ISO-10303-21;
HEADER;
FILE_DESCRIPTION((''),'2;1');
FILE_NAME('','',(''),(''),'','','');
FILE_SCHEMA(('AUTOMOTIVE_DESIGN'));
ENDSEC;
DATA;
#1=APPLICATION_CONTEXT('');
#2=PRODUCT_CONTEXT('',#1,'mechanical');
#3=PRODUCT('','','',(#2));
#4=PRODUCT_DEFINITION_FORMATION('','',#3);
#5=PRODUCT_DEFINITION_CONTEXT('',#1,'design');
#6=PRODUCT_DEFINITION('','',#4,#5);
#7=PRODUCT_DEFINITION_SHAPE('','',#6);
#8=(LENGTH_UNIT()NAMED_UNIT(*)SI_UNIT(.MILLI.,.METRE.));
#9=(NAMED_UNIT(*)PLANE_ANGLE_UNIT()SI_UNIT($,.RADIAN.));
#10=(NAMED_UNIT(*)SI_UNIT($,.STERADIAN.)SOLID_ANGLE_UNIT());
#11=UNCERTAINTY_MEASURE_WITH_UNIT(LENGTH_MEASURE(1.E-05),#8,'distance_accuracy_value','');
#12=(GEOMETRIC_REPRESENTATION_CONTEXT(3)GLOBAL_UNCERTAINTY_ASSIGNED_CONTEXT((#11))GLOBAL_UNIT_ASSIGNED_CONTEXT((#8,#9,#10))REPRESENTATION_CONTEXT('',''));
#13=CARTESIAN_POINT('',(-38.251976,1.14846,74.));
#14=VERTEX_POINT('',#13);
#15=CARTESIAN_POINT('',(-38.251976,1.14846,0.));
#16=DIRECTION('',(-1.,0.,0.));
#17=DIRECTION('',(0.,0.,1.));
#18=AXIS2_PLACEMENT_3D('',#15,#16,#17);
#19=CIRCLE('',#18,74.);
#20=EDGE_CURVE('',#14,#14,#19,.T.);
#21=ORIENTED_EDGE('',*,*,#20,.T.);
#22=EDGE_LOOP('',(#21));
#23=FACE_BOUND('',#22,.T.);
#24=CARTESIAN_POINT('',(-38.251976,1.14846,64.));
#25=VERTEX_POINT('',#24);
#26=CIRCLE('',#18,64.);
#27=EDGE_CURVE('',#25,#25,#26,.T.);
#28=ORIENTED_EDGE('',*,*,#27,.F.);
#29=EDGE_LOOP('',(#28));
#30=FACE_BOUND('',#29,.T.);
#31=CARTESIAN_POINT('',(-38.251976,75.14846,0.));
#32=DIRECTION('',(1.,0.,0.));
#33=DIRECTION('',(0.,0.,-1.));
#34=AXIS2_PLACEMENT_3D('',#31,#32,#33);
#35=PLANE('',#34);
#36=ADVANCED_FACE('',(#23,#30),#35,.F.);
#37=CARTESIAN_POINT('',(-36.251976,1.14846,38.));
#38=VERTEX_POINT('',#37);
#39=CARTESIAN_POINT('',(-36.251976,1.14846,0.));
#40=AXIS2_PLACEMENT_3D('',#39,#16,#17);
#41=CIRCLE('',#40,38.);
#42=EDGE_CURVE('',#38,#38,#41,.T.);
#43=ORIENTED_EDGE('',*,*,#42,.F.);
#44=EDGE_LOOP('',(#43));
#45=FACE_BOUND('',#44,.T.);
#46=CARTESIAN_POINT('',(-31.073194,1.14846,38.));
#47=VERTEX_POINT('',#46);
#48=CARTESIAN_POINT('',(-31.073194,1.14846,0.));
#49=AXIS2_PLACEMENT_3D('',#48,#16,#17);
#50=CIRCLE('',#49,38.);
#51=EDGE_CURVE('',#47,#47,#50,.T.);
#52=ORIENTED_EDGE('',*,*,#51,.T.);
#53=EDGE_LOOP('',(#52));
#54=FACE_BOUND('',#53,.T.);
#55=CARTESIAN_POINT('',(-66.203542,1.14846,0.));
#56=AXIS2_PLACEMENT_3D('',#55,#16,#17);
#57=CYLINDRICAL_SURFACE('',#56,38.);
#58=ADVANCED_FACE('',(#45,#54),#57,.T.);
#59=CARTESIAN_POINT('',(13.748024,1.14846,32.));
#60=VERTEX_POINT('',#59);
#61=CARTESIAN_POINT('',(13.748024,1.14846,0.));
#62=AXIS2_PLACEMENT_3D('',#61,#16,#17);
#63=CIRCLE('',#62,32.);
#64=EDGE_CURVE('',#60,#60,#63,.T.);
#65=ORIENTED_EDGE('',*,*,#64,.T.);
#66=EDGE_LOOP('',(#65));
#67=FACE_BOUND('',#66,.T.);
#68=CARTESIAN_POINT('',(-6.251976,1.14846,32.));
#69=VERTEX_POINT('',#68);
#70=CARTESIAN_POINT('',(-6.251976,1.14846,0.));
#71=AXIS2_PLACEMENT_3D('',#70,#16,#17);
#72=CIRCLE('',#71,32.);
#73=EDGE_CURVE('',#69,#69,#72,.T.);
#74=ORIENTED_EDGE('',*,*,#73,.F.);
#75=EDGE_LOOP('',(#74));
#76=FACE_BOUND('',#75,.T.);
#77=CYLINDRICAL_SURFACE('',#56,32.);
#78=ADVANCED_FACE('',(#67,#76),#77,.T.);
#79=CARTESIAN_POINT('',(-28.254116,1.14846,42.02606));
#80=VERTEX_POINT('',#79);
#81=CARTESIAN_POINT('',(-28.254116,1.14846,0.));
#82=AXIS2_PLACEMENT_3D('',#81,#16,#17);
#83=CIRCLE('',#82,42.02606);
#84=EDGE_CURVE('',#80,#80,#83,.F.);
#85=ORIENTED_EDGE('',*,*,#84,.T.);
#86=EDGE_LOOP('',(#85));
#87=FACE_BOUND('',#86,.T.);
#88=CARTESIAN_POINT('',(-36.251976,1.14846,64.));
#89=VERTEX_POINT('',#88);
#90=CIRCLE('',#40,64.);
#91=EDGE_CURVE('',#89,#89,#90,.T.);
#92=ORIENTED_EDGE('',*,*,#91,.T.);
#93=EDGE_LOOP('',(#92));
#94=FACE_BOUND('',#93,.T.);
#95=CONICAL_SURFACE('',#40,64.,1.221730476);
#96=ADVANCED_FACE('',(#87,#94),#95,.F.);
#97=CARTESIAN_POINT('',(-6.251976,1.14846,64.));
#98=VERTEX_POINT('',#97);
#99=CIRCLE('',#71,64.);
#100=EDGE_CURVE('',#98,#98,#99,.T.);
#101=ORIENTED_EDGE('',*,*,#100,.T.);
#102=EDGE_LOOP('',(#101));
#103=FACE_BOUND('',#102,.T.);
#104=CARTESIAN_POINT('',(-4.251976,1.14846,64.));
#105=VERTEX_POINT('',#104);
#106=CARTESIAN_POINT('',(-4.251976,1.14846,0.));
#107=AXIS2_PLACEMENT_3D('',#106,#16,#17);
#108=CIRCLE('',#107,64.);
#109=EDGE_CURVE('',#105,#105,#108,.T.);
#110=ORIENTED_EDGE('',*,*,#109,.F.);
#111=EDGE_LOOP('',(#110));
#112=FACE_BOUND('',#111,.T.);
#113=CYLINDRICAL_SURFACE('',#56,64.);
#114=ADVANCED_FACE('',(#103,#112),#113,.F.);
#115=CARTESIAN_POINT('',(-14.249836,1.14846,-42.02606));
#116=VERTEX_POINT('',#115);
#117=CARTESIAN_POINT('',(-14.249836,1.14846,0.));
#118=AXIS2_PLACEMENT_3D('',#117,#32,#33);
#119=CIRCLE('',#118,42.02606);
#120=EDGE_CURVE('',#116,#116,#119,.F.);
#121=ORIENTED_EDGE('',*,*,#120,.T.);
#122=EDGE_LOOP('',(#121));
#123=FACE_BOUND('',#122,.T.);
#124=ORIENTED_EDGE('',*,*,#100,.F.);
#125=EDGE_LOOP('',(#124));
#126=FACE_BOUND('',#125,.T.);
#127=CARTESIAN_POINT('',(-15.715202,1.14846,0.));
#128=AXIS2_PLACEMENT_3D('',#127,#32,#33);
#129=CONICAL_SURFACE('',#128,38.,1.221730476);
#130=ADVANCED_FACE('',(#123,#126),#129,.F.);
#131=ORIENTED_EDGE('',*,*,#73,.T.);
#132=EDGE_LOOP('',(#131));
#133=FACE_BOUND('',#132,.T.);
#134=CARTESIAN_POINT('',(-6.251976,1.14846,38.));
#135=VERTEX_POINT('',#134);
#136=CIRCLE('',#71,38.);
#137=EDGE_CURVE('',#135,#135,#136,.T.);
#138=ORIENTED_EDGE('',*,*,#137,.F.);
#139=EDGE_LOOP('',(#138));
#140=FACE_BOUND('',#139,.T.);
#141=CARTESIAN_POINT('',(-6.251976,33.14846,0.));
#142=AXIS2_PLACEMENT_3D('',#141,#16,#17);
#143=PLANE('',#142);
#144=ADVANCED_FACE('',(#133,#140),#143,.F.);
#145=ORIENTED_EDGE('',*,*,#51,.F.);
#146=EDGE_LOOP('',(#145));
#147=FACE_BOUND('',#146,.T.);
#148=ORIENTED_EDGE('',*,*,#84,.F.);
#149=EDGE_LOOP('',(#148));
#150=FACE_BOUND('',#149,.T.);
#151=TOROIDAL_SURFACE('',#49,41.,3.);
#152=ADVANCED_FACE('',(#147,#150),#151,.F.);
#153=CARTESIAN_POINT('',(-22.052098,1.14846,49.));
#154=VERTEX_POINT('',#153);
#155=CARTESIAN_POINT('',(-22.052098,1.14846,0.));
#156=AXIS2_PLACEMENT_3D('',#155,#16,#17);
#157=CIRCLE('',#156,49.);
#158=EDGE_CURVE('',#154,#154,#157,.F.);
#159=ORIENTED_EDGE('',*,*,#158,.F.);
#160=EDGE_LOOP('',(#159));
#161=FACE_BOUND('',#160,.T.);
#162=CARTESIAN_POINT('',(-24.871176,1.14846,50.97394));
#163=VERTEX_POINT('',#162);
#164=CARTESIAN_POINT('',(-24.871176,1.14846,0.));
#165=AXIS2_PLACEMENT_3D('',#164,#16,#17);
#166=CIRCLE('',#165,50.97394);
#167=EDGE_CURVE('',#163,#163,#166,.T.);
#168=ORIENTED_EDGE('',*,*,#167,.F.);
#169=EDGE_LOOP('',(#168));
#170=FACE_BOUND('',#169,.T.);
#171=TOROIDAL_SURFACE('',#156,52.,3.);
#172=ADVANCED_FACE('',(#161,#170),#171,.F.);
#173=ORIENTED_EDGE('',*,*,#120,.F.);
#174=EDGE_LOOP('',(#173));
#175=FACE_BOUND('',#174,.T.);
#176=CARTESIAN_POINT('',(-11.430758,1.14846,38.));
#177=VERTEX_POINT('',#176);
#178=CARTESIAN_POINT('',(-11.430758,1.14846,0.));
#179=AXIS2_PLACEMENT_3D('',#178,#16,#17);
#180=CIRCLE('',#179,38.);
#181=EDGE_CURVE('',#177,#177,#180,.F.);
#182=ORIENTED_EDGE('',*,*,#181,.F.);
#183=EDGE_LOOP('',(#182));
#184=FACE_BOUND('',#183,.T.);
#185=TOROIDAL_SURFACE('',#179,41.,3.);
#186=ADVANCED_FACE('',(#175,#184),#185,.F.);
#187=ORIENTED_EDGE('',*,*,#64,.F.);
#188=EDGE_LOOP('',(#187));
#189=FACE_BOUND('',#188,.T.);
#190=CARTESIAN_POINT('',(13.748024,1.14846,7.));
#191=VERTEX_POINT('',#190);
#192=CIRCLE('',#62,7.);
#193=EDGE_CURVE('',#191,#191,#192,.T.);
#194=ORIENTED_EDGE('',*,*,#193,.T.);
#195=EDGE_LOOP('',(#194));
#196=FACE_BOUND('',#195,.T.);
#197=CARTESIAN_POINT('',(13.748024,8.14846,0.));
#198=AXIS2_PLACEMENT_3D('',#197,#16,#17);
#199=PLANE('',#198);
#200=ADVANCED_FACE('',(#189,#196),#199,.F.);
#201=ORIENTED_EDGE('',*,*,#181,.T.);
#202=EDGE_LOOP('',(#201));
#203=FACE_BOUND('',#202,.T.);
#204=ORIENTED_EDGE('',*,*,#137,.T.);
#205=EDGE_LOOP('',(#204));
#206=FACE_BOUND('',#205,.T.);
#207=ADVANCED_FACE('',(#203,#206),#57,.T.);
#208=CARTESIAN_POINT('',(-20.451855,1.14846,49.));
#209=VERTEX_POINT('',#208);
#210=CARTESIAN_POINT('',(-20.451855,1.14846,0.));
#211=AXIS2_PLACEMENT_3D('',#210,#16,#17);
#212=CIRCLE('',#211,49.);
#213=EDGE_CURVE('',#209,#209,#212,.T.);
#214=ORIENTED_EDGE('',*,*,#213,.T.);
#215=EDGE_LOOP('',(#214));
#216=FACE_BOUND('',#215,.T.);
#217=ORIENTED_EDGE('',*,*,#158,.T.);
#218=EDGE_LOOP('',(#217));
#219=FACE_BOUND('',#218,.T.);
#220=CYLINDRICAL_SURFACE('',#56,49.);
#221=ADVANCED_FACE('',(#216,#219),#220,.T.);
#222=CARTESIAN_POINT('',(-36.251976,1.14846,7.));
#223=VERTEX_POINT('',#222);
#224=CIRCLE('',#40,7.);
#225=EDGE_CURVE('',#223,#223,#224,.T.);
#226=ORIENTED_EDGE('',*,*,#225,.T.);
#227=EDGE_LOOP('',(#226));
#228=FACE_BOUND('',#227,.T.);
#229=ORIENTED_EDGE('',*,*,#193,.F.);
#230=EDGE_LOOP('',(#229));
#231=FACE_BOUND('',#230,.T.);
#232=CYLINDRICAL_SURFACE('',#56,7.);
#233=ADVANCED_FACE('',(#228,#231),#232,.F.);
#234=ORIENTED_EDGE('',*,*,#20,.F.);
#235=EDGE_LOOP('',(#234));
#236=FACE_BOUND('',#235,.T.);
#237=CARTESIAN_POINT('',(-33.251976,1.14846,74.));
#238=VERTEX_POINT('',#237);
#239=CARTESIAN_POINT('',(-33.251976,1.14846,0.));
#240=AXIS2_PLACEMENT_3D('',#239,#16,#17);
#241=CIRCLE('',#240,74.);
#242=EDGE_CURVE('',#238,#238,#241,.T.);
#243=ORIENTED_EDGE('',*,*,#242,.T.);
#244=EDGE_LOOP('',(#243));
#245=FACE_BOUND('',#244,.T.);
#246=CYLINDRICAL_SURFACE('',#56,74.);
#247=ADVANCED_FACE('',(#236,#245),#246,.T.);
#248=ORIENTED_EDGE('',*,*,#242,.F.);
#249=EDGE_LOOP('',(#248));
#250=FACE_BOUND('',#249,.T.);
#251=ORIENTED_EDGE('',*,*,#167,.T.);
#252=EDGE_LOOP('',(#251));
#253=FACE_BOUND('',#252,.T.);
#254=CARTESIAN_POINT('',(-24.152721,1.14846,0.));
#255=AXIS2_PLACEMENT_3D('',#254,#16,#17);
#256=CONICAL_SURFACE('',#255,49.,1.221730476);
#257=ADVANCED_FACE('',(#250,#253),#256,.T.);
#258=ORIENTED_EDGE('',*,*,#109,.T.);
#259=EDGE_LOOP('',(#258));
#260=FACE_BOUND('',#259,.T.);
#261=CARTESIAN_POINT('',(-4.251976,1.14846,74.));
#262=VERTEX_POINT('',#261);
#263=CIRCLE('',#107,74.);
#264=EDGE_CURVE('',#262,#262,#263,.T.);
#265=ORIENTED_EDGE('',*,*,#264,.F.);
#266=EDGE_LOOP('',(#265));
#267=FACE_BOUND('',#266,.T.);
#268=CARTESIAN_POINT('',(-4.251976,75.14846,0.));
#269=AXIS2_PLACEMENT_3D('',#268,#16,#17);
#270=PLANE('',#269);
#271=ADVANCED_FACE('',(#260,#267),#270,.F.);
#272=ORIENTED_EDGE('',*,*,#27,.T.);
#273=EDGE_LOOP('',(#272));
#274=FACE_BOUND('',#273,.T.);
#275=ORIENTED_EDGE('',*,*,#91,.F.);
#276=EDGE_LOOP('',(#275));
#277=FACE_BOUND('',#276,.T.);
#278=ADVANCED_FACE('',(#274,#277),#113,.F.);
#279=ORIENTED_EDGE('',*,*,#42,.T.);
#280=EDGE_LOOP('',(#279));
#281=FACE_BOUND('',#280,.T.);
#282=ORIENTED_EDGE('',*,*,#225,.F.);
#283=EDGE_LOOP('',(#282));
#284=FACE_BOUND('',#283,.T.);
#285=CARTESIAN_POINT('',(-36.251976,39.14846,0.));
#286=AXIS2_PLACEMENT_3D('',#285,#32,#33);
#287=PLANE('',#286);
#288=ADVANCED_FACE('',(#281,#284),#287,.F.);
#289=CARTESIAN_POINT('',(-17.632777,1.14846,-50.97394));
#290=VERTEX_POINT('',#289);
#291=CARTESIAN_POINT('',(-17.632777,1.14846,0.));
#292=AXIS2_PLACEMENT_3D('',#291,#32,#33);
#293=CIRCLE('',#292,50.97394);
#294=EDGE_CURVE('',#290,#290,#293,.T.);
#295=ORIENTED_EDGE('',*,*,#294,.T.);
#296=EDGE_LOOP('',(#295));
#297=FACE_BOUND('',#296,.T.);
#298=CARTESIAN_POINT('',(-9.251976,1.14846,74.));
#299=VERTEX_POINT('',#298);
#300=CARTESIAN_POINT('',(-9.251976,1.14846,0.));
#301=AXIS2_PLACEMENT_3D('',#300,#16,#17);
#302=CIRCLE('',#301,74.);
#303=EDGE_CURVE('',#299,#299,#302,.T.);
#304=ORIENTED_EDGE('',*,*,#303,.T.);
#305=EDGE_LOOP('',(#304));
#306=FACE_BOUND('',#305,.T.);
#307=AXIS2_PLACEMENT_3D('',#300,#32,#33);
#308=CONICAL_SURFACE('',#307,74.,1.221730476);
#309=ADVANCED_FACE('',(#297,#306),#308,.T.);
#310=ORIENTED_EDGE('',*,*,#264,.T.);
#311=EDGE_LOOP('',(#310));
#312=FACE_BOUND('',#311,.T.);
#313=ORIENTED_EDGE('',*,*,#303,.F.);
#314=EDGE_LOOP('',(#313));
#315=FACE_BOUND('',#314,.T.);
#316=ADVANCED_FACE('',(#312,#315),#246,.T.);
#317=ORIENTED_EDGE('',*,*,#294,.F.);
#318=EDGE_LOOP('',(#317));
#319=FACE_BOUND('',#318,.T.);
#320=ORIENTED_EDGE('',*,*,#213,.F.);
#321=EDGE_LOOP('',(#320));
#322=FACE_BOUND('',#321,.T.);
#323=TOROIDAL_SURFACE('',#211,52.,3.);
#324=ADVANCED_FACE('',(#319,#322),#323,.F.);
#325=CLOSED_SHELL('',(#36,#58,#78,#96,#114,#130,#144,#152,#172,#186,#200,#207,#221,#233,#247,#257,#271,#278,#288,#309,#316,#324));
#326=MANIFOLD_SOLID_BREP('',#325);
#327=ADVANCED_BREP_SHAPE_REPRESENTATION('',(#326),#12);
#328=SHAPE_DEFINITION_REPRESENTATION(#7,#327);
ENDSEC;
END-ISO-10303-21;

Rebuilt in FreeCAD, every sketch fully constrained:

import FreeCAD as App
import Part
import Sketcher
from FreeCAD import Vector
Q = App.Units.Quantity


def edges_at(feature, points):
    """Names of the edges that pass closest to the given points."""
    edges = feature.Shape.Edges
    near = lambda p: min(range(len(edges)), key=lambda i: edges[i].distToShape(Part.Vertex(*p))[0])
    return sorted({f"Edge{near(p) + 1}" for p in points})

doc = App.newDocument("Part")
body = doc.addObject("PartDesign::Body", "Body")

# Sketch on XY plane
sketch1 = doc.addObject("Sketcher::SketchObject", "Sketch")
body.addObject(sketch1)
sketch1.AttachmentSupport = (doc.XY_Plane, [""])
sketch1.MapMode = "FlatFace"
sketch1.addGeometry([
    Part.LineSegment(Vector(-36.3, 8.1, 0), Vector(13.7, 8.1, 0)),  # 0
    Part.LineSegment(Vector(13.7, 8.1, 0), Vector(13.7, 33.1, 0)),  # 1
    Part.LineSegment(Vector(13.7, 33.1, 0), Vector(-6.3, 33.1, 0)),  # 2
    Part.LineSegment(Vector(-6.3, 33.1, 0), Vector(-6.3, 39.1, 0)),  # 3
    Part.LineSegment(Vector(-6.3, 39.1, 0), Vector(-15.7, 39.1, 0)),  # 4
    Part.LineSegment(Vector(-15.7, 39.1, 0), Vector(-6.3, 65.1, 0)),  # 5
    Part.LineSegment(Vector(-6.3, 65.1, 0), Vector(-4.3, 65.1, 0)),  # 6
    Part.LineSegment(Vector(-4.3, 65.1, 0), Vector(-4.3, 75.1, 0)),  # 7
    Part.LineSegment(Vector(-4.3, 75.1, 0), Vector(-9.3, 75.1, 0)),  # 8
    Part.LineSegment(Vector(-9.3, 75.1, 0), Vector(-18.4, 50.1, 0)),  # 9
    Part.LineSegment(Vector(-18.4, 50.1, 0), Vector(-24.2, 50.1, 0)),  # 10
    Part.LineSegment(Vector(-24.2, 50.1, 0), Vector(-33.3, 75.1, 0)),  # 11
    Part.LineSegment(Vector(-33.3, 75.1, 0), Vector(-38.3, 75.1, 0)),  # 12
    Part.LineSegment(Vector(-38.3, 75.1, 0), Vector(-38.3, 65.1, 0)),  # 13
    Part.LineSegment(Vector(-38.3, 65.1, 0), Vector(-36.3, 65.1, 0)),  # 14
    Part.LineSegment(Vector(-36.3, 65.1, 0), Vector(-26.8, 39.1, 0)),  # 15
    Part.LineSegment(Vector(-26.8, 39.1, 0), Vector(-36.3, 39.1, 0)),  # 16
    Part.LineSegment(Vector(-36.3, 39.1, 0), Vector(-36.3, 8.1, 0)),  # 17
], False)
sketch1.addGeometry(Part.LineSegment(Vector(-38.3, 1.1, 0), Vector(13.7, 1.1, 0)), True)  # axis
sketch1.addConstraint([
    Sketcher.Constraint("Coincident", 0, 2, 1, 1),
    Sketcher.Constraint("Coincident", 1, 2, 2, 1),
    Sketcher.Constraint("Coincident", 2, 2, 3, 1),
    Sketcher.Constraint("Coincident", 3, 2, 4, 1),
    Sketcher.Constraint("Coincident", 4, 2, 5, 1),
    Sketcher.Constraint("Coincident", 5, 2, 6, 1),
    Sketcher.Constraint("Coincident", 6, 2, 7, 1),
    Sketcher.Constraint("Coincident", 7, 2, 8, 1),
    Sketcher.Constraint("Coincident", 8, 2, 9, 1),
    Sketcher.Constraint("Coincident", 9, 2, 10, 1),
    Sketcher.Constraint("Coincident", 10, 2, 11, 1),
    Sketcher.Constraint("Coincident", 11, 2, 12, 1),
    Sketcher.Constraint("Coincident", 12, 2, 13, 1),
    Sketcher.Constraint("Coincident", 13, 2, 14, 1),
    Sketcher.Constraint("Coincident", 14, 2, 15, 1),
    Sketcher.Constraint("Coincident", 15, 2, 16, 1),
    Sketcher.Constraint("Coincident", 16, 2, 17, 1),
    Sketcher.Constraint("Coincident", 17, 2, 0, 1),
    Sketcher.Constraint("Horizontal", 0),
    Sketcher.Constraint("Vertical", 1),
    Sketcher.Constraint("Horizontal", 2),
    Sketcher.Constraint("Vertical", 3),
    Sketcher.Constraint("Horizontal", 4),
    Sketcher.Constraint("Horizontal", 6),
    Sketcher.Constraint("Vertical", 7),
    Sketcher.Constraint("Horizontal", 8),
    Sketcher.Constraint("Horizontal", 10),
    Sketcher.Constraint("Horizontal", 12),
    Sketcher.Constraint("Vertical", 13),
    Sketcher.Constraint("Horizontal", 14),
    Sketcher.Constraint("Horizontal", 16),
    Sketcher.Constraint("Vertical", 17),
    Sketcher.Constraint("Horizontal", 18),
    Sketcher.Constraint("Parallel", 5, 9),
    Sketcher.Constraint("Parallel", 11, 15),
    Sketcher.Constraint("Horizontal", 8, 2, 11, 2),
    Sketcher.Constraint("Horizontal", 6, 2, 13, 2),
    Sketcher.Constraint("Horizontal", 4, 2, 15, 2),
    Sketcher.Constraint("Vertical", 3, 2, 5, 2),
    Sketcher.Constraint("Vertical", 14, 2, 16, 2),
    Sketcher.Constraint("Vertical", 13, 2, 18, 1),
    Sketcher.Constraint("Vertical", 1, 2, 18, 2),
    Sketcher.Constraint("Equal", 8, 12),
    Sketcher.Constraint("Equal", 6, 14),
    Sketcher.Constraint("Equal", 4, 16),
    Sketcher.Constraint("DistanceX", 0, 1, 0, 2, Q("50 mm")),
    Sketcher.Constraint("DistanceX", 2, 2, 2, 1, Q("20 mm")),
    Sketcher.Constraint("DistanceX", 6, 1, 6, 2, Q("2 mm")),
    Sketcher.Constraint("DistanceX", 8, 2, 8, 1, Q("5 mm")),
    Sketcher.Constraint("DistanceY", 1, 1, 1, 2, Q("25 mm")),
    Sketcher.Constraint("DistanceY", 3, 1, 3, 2, Q("6 mm")),
    Sketcher.Constraint("DistanceY", 7, 1, 7, 2, Q("10 mm")),
    Sketcher.Constraint("Angle", 5, Q("70 deg")),
    Sketcher.Constraint("DistanceY", 3, 2, 5, 2, Q("26 mm")),
    Sketcher.Constraint("DistanceY", 4, 2, 9, 2, Q("11 mm")),
    Sketcher.Constraint("DistanceY", 18, 1, 17, 2, Q("7 mm")),
    Sketcher.Constraint("DistanceY", -1, 1, 0, 2, Q("8.14846 mm")),
    Sketcher.Constraint("DistanceX", 10, 2, -1, 1, Q("24.152721 mm")),
])
revolution = doc.addObject("PartDesign::Revolution", "Revolution")
body.addObject(revolution)
revolution.Profile = sketch1
revolution.ReferenceAxis = (sketch1, ["Axis0"])
revolution.Angle = 360
doc.recompute()

fillet = doc.addObject("PartDesign::Fillet", "Fillet")
body.addObject(fillet)
fillet.Base = (revolution, edges_at(revolution, [
    (-26.789, -36.852, 0),
    (-24.153, -47.852, 0),
    (-18.351, -47.852, 0),
    (-15.715, -36.852, 0),
]))
fillet.Radius = 3

doc.recompute()
